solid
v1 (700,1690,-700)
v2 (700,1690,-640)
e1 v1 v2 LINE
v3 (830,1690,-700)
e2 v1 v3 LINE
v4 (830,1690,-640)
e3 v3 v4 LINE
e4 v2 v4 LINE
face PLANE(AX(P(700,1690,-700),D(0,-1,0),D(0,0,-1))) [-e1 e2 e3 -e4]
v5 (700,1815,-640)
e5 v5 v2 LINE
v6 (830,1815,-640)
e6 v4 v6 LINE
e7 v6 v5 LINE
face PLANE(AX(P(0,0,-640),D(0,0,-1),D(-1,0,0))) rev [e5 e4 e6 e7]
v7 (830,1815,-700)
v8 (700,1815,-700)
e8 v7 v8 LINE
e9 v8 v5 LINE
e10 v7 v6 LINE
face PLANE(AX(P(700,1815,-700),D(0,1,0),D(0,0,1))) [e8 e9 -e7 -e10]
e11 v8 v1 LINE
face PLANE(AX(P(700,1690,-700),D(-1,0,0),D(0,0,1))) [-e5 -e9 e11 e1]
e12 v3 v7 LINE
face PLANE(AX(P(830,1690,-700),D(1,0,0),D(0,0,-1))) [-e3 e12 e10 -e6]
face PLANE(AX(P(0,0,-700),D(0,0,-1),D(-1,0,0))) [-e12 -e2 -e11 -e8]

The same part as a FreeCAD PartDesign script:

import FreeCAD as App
import Part
import Sketcher

V = App.Vector

doc = App.newDocument("Part")
body = doc.addObject("PartDesign::Body", "Body")

sketch1 = doc.addObject("Sketcher::SketchObject", "Sketch")
body.addObject(sketch1)
sketch1.AttachmentSupport = (doc.XY_Plane, [""])
sketch1.MapMode = "FlatFace"
sketch1.AttachmentOffset = App.Placement(V(0, 0, -640), App.Rotation())
sketch1.addGeometry(Part.LineSegment(V(700, 1815, 0), V(700, 1690, 0)), False)
sketch1.addGeometry(Part.LineSegment(V(700, 1690, 0), V(830, 1690, 0)), False)
sketch1.addGeometry(Part.LineSegment(V(830, 1690, 0), V(830, 1815, 0)), False)
sketch1.addGeometry(Part.LineSegment(V(830, 1815, 0), V(700, 1815, 0)), False)
sketch1.addConstraint(Sketcher.Constraint("Coincident", 0, 2, 1, 1))
sketch1.addConstraint(Sketcher.Constraint("Coincident", 1, 2, 2, 1))
sketch1.addConstraint(Sketcher.Constraint("Coincident", 2, 2, 3, 1))
sketch1.addConstraint(Sketcher.Constraint("Coincident", 3, 2, 0, 1))
sketch1.addConstraint(Sketcher.Constraint("Vertical", 0))
sketch1.addConstraint(Sketcher.Constraint("Horizontal", 1))
sketch1.addConstraint(Sketcher.Constraint("Vertical", 2))
sketch1.addConstraint(Sketcher.Constraint("Horizontal", 3))
sketch1.addConstraint(Sketcher.Constraint("DistanceX", 1, 1, 1, 2, 130.0))
sketch1.addConstraint(Sketcher.Constraint("DistanceY", 0, 2, 0, 1, 125.0))
sketch1.addConstraint(Sketcher.Constraint("DistanceX", -1, 1, 0, 2, 700.0))
sketch1.addConstraint(Sketcher.Constraint("DistanceY", -1, 1, 0, 2, 1690.0))
pad1 = doc.addObject("PartDesign::Pad", "Pad")
body.addObject(pad1)
pad1.Profile = sketch1
pad1.Length = 60
pad1.Reversed = True

doc.recompute()
